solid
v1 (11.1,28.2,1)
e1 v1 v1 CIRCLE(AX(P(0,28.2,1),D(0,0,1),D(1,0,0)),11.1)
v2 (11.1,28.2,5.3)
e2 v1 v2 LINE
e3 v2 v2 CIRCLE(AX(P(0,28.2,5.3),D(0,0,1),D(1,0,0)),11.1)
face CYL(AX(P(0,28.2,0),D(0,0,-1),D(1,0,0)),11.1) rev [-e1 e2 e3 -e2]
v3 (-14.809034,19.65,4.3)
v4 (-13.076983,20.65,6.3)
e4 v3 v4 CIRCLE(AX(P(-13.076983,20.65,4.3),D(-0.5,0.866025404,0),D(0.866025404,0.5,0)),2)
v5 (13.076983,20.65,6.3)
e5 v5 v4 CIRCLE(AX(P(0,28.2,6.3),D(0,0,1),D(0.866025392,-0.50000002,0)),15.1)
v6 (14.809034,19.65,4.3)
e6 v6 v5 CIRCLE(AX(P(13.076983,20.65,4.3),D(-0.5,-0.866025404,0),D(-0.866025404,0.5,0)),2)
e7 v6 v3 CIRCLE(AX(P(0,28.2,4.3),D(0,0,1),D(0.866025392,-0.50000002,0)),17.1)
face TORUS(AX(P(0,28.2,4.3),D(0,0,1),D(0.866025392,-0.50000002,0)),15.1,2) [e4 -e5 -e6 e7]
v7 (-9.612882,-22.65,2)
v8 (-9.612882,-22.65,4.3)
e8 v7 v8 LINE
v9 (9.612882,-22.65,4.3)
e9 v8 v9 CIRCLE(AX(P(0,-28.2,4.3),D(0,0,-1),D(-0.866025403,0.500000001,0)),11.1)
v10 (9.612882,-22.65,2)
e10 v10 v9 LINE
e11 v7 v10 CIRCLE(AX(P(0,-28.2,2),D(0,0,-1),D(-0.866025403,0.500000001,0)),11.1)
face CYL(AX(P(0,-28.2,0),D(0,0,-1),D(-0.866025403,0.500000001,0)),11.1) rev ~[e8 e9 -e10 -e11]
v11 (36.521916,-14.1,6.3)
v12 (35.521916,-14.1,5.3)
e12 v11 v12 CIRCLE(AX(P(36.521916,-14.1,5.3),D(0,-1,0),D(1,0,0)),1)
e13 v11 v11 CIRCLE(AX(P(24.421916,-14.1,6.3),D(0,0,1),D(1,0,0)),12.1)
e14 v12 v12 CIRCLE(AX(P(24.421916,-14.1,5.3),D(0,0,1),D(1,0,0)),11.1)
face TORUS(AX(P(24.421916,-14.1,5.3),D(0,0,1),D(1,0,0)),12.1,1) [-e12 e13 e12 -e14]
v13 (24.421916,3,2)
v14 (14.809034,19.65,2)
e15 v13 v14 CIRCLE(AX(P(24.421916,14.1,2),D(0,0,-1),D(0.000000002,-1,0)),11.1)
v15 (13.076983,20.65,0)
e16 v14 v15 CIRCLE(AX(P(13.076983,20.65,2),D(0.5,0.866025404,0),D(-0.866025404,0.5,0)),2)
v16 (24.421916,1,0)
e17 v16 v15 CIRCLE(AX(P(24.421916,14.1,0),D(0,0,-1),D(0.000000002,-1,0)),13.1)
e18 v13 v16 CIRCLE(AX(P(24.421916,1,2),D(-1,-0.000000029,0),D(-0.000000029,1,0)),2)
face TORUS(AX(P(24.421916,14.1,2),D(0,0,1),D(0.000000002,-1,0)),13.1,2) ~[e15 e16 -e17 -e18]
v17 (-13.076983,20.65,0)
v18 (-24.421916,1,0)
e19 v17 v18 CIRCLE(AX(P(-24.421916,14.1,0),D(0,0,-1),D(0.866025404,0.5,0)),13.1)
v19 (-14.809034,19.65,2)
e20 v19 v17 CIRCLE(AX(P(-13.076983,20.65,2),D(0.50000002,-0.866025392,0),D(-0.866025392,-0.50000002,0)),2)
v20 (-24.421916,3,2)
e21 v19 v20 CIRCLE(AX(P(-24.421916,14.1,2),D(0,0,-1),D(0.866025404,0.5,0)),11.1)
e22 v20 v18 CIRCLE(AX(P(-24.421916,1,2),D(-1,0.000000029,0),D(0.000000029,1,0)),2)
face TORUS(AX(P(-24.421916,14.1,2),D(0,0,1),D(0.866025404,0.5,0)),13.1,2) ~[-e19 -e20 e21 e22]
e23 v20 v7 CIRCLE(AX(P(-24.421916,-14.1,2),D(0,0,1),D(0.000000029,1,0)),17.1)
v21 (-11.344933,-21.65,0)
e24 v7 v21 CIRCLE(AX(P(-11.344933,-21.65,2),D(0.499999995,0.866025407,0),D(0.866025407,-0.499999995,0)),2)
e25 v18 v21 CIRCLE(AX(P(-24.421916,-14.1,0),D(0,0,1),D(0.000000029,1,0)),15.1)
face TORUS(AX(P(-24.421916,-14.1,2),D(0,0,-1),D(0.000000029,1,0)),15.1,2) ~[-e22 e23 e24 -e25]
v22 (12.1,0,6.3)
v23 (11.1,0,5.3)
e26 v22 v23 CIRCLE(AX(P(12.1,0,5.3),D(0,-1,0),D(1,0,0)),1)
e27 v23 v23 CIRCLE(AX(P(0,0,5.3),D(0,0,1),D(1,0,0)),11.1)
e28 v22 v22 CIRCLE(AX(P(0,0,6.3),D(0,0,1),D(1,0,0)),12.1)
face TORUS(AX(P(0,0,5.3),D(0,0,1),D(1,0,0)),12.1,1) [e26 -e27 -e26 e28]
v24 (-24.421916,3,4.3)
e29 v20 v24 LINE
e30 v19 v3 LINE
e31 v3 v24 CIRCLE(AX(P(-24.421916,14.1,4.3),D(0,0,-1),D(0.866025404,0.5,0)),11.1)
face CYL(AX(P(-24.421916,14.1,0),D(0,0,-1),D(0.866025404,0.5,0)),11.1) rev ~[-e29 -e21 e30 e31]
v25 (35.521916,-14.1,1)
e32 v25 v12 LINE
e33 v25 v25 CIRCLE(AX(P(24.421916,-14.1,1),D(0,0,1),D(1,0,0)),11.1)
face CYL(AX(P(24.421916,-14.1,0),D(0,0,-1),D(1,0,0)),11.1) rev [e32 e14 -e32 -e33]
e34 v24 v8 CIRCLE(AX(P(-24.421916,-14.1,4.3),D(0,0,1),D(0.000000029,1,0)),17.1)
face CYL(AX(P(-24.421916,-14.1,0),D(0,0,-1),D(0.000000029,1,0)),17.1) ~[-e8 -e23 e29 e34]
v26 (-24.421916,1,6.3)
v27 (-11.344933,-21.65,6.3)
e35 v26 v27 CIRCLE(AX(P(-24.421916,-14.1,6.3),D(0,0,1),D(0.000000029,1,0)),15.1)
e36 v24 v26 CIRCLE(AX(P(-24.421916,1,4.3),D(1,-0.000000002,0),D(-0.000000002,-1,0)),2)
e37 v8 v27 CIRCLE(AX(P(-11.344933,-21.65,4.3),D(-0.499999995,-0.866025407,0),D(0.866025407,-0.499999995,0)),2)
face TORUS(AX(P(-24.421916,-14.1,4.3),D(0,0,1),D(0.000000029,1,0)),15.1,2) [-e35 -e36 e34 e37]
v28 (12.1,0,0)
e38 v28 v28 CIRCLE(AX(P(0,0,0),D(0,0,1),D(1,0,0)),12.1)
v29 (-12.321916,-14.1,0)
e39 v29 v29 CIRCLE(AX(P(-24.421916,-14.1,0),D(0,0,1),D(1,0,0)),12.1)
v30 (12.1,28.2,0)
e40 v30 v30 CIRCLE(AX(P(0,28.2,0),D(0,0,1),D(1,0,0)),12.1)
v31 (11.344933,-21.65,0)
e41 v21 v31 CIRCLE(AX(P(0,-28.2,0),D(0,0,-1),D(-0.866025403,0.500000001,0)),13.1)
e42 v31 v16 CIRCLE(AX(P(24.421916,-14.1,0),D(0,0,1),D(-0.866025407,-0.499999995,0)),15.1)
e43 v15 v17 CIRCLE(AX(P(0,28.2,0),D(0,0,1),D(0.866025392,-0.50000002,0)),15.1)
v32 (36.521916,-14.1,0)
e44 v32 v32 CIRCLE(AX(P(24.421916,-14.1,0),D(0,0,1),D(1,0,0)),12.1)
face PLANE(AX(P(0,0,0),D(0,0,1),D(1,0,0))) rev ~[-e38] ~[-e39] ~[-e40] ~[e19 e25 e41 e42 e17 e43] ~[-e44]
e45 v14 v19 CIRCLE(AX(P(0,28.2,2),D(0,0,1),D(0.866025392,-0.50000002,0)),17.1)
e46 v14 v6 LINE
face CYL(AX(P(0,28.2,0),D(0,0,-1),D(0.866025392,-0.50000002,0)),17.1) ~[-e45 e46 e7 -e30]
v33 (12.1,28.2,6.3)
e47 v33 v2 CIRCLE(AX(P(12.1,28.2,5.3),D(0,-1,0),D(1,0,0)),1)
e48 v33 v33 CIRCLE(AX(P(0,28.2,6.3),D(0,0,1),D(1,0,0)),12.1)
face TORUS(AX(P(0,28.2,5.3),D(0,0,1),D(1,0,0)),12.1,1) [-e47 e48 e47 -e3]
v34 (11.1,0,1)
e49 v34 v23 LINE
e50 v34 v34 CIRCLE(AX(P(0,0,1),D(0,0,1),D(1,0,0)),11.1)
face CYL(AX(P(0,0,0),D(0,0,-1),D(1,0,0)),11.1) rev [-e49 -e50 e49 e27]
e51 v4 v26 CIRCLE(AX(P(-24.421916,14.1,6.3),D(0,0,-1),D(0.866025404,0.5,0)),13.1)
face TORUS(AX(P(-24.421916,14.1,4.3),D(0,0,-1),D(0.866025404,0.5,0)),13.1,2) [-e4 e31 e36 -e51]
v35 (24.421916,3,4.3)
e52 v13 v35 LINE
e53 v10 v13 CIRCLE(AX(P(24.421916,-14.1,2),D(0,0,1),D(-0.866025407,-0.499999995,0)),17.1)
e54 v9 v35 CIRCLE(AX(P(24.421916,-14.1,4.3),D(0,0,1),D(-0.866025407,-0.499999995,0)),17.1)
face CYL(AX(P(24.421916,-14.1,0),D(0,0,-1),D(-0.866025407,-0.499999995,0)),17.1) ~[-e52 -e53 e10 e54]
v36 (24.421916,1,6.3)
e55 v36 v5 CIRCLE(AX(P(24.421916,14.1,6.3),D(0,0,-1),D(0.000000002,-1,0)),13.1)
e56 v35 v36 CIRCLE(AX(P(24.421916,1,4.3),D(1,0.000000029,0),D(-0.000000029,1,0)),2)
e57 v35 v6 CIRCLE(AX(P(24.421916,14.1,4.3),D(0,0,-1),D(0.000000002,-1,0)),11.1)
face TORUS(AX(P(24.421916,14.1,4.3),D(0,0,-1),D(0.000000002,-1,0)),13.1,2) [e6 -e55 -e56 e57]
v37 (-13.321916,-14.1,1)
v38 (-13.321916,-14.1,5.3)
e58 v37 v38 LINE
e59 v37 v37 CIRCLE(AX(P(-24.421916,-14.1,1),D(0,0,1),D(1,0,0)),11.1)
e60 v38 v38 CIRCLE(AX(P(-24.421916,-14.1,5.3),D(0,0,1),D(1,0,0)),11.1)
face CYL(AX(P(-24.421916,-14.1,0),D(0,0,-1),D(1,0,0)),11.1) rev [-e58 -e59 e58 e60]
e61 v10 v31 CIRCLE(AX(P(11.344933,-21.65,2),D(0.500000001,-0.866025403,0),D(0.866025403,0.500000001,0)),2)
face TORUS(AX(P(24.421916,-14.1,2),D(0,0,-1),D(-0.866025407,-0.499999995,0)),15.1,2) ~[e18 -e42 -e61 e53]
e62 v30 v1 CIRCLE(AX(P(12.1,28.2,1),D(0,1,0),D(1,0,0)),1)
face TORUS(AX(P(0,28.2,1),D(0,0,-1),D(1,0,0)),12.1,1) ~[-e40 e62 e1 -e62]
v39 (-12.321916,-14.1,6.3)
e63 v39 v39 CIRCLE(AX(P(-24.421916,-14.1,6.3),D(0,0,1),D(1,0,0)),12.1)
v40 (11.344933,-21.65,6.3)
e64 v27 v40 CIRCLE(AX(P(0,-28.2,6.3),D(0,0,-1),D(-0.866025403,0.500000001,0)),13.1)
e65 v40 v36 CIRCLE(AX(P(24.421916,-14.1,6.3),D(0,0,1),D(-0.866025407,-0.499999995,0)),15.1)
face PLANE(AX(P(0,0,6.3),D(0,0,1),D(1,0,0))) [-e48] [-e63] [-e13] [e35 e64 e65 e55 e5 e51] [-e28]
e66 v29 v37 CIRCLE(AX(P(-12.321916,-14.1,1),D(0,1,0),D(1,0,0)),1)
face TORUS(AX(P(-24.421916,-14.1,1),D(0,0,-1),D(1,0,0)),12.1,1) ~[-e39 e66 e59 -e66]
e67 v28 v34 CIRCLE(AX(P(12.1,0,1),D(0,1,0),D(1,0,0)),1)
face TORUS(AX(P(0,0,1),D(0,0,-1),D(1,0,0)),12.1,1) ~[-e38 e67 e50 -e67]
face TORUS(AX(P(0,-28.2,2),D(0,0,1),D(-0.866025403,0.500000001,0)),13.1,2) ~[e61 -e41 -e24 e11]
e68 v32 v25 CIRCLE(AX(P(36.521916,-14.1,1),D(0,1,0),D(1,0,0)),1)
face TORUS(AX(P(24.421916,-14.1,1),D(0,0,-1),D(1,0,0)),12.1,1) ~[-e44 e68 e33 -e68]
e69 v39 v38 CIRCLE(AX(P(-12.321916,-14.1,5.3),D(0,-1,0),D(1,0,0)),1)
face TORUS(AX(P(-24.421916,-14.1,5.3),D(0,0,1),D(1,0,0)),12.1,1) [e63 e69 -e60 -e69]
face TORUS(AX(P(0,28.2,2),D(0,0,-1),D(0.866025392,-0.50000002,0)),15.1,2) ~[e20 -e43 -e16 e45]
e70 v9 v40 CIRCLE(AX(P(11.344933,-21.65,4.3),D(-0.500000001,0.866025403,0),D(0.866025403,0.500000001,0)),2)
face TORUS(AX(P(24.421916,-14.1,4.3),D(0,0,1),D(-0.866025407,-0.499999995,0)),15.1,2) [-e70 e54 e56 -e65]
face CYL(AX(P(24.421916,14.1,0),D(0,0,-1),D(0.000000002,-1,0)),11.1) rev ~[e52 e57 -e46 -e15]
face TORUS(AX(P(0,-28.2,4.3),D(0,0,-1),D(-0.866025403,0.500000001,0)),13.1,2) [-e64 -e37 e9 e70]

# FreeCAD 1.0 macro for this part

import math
import FreeCAD as App
import Part
import Sketcher

V = App.Vector
Q = App.Units.Quantity


def edges_at(feature, points):
    """Names of the edges that pass closest to the given points."""
    edges = feature.Shape.Edges
    near = lambda p: min(range(len(edges)), key=lambda i: edges[i].distToShape(Part.Vertex(*p))[0])
    return sorted({f"Edge{near(p) + 1}" for p in points})

doc = App.newDocument("Part")
body = doc.addObject("PartDesign::Body", "Body")

# Sketch on XY plane
sketch1 = doc.addObject("Sketcher::SketchObject", "Sketch")
body.addObject(sketch1)
sketch1.AttachmentSupport = (doc.XY_Plane, [""])
sketch1.MapMode = "FlatFace"
sketch1.addGeometry([
    Part.ArcOfCircle(Part.Circle(V(24.421916, 14.1, 0), V(0, 0, 1), 11.1), math.radians(150), math.radians(270)),  # 0
    Part.ArcOfCircle(Part.Circle(V(0, 28.2, 0), V(0, 0, 1), 17.1), math.radians(-30.000001), math.radians(210.000001)),  # 1
    Part.ArcOfCircle(Part.Circle(V(-24.421916, 14.1, 0), V(0, 0, 1), 11.1), math.radians(-90), math.radians(30)),  # 2
    Part.ArcOfCircle(Part.Circle(V(-24.421916, -14.1, 0), V(0, 0, 1), 17.1), math.radians(89.999998), math.radians(330)),  # 3
    Part.ArcOfCircle(Part.Circle(V(0, -28.2, 0), V(0, 0, 1), 11.1), math.radians(30), math.radians(150)),  # 4
    Part.ArcOfCircle(Part.Circle(V(24.421916, -14.1, 0), V(0, 0, 1), 17.1), math.radians(-150), math.radians(90.000002)),  # 5
    Part.Circle(V(-24.421916, -14.1, 0), V(0, 0, 1), 11.1),  # 6
    Part.Circle(V(0, 0, 0), V(0, 0, 1), 11.1),  # 7
    Part.Circle(V(24.421916, -14.1, 0), V(0, 0, 1), 11.1),  # 8
    Part.Circle(V(0, 28.2, 0), V(0, 0, 1), 11.1),  # 9
], False)
sketch1.addConstraint([
    Sketcher.Constraint("Tangent", 0, 1, 1, 1),
    Sketcher.Constraint("Tangent", 1, 2, 2, 2),
    Sketcher.Constraint("Tangent", 2, 1, 3, 1),
    Sketcher.Constraint("Tangent", 3, 2, 4, 2),
    Sketcher.Constraint("Tangent", 4, 1, 5, 1),
    Sketcher.Constraint("Tangent", 5, 2, 0, 2),
    Sketcher.Constraint("Coincident", 7, 3, -1, 1),
    Sketcher.Constraint("Coincident", 6, 3, 3, 3),
    Sketcher.Constraint("Coincident", 8, 3, 5, 3),
    Sketcher.Constraint("Coincident", 9, 3, 1, 3),
    Sketcher.Constraint("Equal", 0, 2),
    Sketcher.Constraint("Equal", 1, 3),
    Sketcher.Constraint("Equal", 2, 4),
    Sketcher.Constraint("Equal", 3, 5),
    Sketcher.Constraint("Equal", 4, 6),
    Sketcher.Constraint("Equal", 6, 7),
    Sketcher.Constraint("Equal", 7, 8),
    Sketcher.Constraint("Equal", 8, 9),
    Sketcher.Constraint("Symmetric", 0, 3, 3, 3, -1, 1),
    Sketcher.Constraint("Symmetric", 0, 3, 2, 3, -2),
    Sketcher.Constraint("PointOnObject", 4, 3, -2),
    Sketcher.Constraint("Diameter", 6, Q("22.2 mm")),
    Sketcher.Constraint("Radius", 1, Q("17.1 mm")),
    Sketcher.Constraint("DistanceY", -1, 1, 1, 3, Q("28.2 mm")),
])
pad1 = doc.addObject("PartDesign::Pad", "Pad")
body.addObject(pad1)
pad1.Profile = sketch1
pad1.Length = 6.3
doc.recompute()

fillet = doc.addObject("PartDesign::Fillet", "Fillet")
body.addObject(fillet)
fillet.Base = (pad1, edges_at(pad1, [(-14.809, 8.55, 6.3), (-39.231, -22.65, 0)]))
fillet.Radius = 2
doc.recompute()

fillet2 = doc.addObject("PartDesign::Fillet", "Fillet001")
body.addObject(fillet2)
fillet2.Base = (fillet, edges_at(fillet, [
    (-35.522, -14.1, 0),
    (-11.1, 0, 0),
    (13.322, -14.1, 0),
    (-11.1, 28.2, 0),
    (-11.1, 0, 6.3),
    (13.322, -14.1, 6.3),
    (-11.1, 28.2, 6.3),
    (-35.522, -14.1, 6.3),
]))
fillet2.Radius = 1

doc.recompute()
